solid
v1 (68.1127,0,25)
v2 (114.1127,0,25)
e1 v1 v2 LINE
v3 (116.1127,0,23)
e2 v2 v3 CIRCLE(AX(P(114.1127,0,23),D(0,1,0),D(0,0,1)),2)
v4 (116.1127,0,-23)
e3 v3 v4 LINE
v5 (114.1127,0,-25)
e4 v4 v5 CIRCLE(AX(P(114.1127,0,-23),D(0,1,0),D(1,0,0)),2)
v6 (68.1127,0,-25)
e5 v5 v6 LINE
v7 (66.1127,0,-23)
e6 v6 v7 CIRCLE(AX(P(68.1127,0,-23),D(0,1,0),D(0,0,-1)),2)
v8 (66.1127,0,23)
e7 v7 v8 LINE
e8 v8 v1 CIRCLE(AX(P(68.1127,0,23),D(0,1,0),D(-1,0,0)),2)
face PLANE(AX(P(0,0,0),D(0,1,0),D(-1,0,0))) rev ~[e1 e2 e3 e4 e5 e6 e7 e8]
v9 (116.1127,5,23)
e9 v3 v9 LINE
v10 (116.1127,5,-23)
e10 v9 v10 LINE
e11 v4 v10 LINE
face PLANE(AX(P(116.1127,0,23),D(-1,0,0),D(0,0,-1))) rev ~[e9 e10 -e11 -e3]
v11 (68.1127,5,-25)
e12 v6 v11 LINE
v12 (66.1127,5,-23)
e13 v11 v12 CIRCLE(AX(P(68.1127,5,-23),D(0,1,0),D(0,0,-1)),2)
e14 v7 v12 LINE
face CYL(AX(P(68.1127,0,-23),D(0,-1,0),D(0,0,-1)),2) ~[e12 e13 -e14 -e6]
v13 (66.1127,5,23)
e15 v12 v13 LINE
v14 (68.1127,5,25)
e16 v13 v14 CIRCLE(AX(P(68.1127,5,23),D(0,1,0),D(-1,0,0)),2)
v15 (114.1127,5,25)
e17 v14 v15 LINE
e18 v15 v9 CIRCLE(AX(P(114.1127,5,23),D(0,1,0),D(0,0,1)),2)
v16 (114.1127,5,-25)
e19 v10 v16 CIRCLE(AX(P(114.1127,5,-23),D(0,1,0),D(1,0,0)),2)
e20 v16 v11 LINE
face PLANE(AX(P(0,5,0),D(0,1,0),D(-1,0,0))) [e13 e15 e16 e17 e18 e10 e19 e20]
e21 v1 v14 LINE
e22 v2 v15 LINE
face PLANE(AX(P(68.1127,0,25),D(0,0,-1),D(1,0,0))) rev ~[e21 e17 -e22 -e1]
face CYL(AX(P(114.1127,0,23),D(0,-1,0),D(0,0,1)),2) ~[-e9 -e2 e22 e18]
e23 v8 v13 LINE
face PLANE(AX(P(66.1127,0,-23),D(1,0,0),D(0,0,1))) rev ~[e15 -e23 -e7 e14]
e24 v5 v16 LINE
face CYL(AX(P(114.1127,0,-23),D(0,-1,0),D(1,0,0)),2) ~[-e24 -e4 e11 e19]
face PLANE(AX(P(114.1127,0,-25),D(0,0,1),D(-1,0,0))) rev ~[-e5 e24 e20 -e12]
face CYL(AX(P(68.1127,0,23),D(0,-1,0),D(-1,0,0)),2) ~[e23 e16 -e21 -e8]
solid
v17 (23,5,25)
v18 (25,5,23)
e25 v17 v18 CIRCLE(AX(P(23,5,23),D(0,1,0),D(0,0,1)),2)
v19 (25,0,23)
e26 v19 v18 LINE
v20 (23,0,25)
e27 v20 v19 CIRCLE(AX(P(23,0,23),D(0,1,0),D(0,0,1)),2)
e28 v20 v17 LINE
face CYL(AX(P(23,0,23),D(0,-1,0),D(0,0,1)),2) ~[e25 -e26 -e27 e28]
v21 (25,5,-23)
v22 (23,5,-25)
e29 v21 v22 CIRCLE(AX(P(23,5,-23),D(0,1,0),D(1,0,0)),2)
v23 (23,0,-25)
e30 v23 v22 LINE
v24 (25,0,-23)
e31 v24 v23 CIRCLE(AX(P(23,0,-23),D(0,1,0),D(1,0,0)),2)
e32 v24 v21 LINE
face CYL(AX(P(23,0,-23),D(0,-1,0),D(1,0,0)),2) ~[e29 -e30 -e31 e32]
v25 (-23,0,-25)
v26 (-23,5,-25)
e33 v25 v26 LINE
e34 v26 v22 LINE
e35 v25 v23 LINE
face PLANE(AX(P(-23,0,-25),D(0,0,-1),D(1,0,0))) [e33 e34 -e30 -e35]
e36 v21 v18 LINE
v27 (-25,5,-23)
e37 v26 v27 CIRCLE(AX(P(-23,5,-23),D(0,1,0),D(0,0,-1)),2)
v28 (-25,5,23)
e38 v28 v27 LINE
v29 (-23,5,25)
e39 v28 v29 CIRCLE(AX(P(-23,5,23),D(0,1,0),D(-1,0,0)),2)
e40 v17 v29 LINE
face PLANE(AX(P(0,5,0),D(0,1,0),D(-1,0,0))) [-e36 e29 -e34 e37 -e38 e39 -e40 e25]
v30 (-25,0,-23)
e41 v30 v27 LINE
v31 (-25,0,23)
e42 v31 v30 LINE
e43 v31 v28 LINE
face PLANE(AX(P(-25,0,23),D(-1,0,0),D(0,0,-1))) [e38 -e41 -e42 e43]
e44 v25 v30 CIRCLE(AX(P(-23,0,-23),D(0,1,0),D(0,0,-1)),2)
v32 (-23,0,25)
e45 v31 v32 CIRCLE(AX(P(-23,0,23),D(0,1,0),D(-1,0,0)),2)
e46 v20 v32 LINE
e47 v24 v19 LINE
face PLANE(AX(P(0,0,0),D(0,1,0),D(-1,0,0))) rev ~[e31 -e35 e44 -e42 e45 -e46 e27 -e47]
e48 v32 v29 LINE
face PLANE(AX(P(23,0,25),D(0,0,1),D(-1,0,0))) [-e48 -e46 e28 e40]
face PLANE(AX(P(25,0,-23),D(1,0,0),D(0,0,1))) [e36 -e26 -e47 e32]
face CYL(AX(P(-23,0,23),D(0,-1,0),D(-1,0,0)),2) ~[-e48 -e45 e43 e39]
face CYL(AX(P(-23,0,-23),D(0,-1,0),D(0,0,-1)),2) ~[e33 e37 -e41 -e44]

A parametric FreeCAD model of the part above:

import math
import FreeCAD as App
import Part
import Sketcher

doc = App.newDocument("Part")
params = doc.addObject("Spreadsheet::Sheet", "Params")
for row, (alias, value) in enumerate([
    ("sketch1_radius", "2 mm"),
    ("sketch1_width", "46 mm"),
    ("pad1_length", "5 mm"),
], start=1):
    params.set(f"A{row}", alias)
    params.set(f"B{row}", "=" + value)
    params.setAlias(f"B{row}", alias)

body = doc.addObject("PartDesign::Body", "Body")
body.AllowCompound = True

# Sketch on XZ plane
sketch1 = body.newObject("Sketcher::SketchObject", "Sketch")
sketch1.AttachmentSupport = (doc.getObject("XZ_Plane"), [""])
sketch1.MapMode = "FlatFace"
sketch1.addGeometry(Part.LineSegment(App.Vector(23, -25, 0), App.Vector(-23, -25, 0)), False)
sketch1.addGeometry(Part.ArcOfCircle(Part.Circle(App.Vector(-23, -23, 0), App.Vector(0, 0, 1), 2), math.radians(180), math.radians(270)), False)
sketch1.addGeometry(Part.LineSegment(App.Vector(-25, -23, 0), App.Vector(-25, 23, 0)), False)
sketch1.addGeometry(Part.ArcOfCircle(Part.Circle(App.Vector(-23, 23, 0), App.Vector(0, 0, 1), 2), math.radians(90), math.radians(180)), False)
sketch1.addGeometry(Part.LineSegment(App.Vector(-23, 25, 0), App.Vector(23, 25, 0)), False)
sketch1.addGeometry(Part.ArcOfCircle(Part.Circle(App.Vector(23, 23, 0), App.Vector(0, 0, 1), 2), math.radians(0), math.radians(90)), False)
sketch1.addGeometry(Part.LineSegment(App.Vector(25, 23, 0), App.Vector(25, -23, 0)), False)
sketch1.addGeometry(Part.ArcOfCircle(Part.Circle(App.Vector(23, -23, 0), App.Vector(0, 0, 1), 2), math.radians(-90), math.radians(0)), False)
sketch1.addGeometry(Part.ArcOfCircle(Part.Circle(App.Vector(114.1, -23, 0), App.Vector(0, 0, 1), 2), math.radians(-90), math.radians(0)), False)
sketch1.addGeometry(Part.LineSegment(App.Vector(114.1, -25, 0), App.Vector(68.1, -25, 0)), False)
sketch1.addGeometry(Part.ArcOfCircle(Part.Circle(App.Vector(68.1, -23, 0), App.Vector(0, 0, 1), 2), math.radians(180), math.radians(270)), False)
sketch1.addGeometry(Part.LineSegment(App.Vector(66.1, -23, 0), App.Vector(66.1, 23, 0)), False)
sketch1.addGeometry(Part.ArcOfCircle(Part.Circle(App.Vector(68.1, 23, 0), App.Vector(0, 0, 1), 2), math.radians(90), math.radians(180)), False)
sketch1.addGeometry(Part.LineSegment(App.Vector(68.1, 25, 0), App.Vector(114.1, 25, 0)), False)
sketch1.addGeometry(Part.ArcOfCircle(Part.Circle(App.Vector(114.1, 23, 0), App.Vector(0, 0, 1), 2), math.radians(0), math.radians(90)), False)
sketch1.addGeometry(Part.LineSegment(App.Vector(116.1, 23, 0), App.Vector(116.1, -23, 0)), False)
sketch1.addConstraint(Sketcher.Constraint("Tangent", 0, 2, 1, 2))
sketch1.addConstraint(Sketcher.Constraint("Tangent", 1, 1, 2, 1))
sketch1.addConstraint(Sketcher.Constraint("Tangent", 2, 2, 3, 2))
sketch1.addConstraint(Sketcher.Constraint("Tangent", 3, 1, 4, 1))
sketch1.addConstraint(Sketcher.Constraint("Tangent", 4, 2, 5, 2))
sketch1.addConstraint(Sketcher.Constraint("Tangent", 5, 1, 6, 1))
sketch1.addConstraint(Sketcher.Constraint("Tangent", 6, 2, 7, 2))
sketch1.addConstraint(Sketcher.Constraint("Tangent", 7, 1, 0, 1))
sketch1.addConstraint(Sketcher.Constraint("Tangent", 8, 1, 9, 1))
sketch1.addConstraint(Sketcher.Constraint("Tangent", 9, 2, 10, 2))
sketch1.addConstraint(Sketcher.Constraint("Tangent", 10, 1, 11, 1))
sketch1.addConstraint(Sketcher.Constraint("Tangent", 11, 2, 12, 2))
sketch1.addConstraint(Sketcher.Constraint("Tangent", 12, 1, 13, 1))
sketch1.addConstraint(Sketcher.Constraint("Tangent", 13, 2, 14, 2))
sketch1.addConstraint(Sketcher.Constraint("Tangent", 14, 1, 15, 1))
sketch1.addConstraint(Sketcher.Constraint("Tangent", 15, 2, 8, 2))
sketch1.addConstraint(Sketcher.Constraint("Horizontal", 0))
sketch1.addConstraint(Sketcher.Constraint("Vertical", 2))
sketch1.addConstraint(Sketcher.Constraint("Horizontal", 4))
sketch1.addConstraint(Sketcher.Constraint("Vertical", 6))
sketch1.addConstraint(Sketcher.Constraint("Horizontal", 9))
sketch1.addConstraint(Sketcher.Constraint("Vertical", 11))
sketch1.addConstraint(Sketcher.Constraint("Horizontal", 13))
sketch1.addConstraint(Sketcher.Constraint("Vertical", 15))
sketch1.addConstraint(Sketcher.Constraint("Equal", 1, 3))
sketch1.addConstraint(Sketcher.Constraint("Equal", 3, 5))
sketch1.addConstraint(Sketcher.Constraint("Equal", 5, 7))
sketch1.addConstraint(Sketcher.Constraint("Equal", 7, 8))
sketch1.addConstraint(Sketcher.Constraint("Equal", 8, 10))
sketch1.addConstraint(Sketcher.Constraint("Equal", 10, 12))
sketch1.addConstraint(Sketcher.Constraint("Equal", 12, 14))
sketch1.addConstraint(Sketcher.Constraint("Symmetric", 1, 3, 5, 3, -1, 1))
sketch1.addConstraint(Sketcher.Constraint("Horizontal", 7, 3, 8, 3))
sketch1.addConstraint(Sketcher.Constraint("Horizontal", 5, 3, 12, 3))
sketch1.addConstraint(Sketcher.Constraint("Equal", 4, 9))
sketch1.addConstraint(Sketcher.Constraint("Equal", 13, 2))
sketch1.addConstraint(Sketcher.Constraint("Radius", 1, 2.0))
sketch1.addConstraint(Sketcher.Constraint("DistanceX", 0, 2, 0, 1, 46.0))
sketch1.addConstraint(Sketcher.Constraint("DistanceX", -1, 1, 8, 3, 114.1127))
sketch1.setExpression("Constraints[36]", "Params.sketch1_radius")
sketch1.setExpression("Constraints[37]", "Params.sketch1_width")
pad1 = body.newObject("PartDesign::Pad", "Pad")
pad1.Profile = sketch1
pad1.setExpression("Length", "Params.pad1_length")
pad1.Reversed = True

doc.recompute()
